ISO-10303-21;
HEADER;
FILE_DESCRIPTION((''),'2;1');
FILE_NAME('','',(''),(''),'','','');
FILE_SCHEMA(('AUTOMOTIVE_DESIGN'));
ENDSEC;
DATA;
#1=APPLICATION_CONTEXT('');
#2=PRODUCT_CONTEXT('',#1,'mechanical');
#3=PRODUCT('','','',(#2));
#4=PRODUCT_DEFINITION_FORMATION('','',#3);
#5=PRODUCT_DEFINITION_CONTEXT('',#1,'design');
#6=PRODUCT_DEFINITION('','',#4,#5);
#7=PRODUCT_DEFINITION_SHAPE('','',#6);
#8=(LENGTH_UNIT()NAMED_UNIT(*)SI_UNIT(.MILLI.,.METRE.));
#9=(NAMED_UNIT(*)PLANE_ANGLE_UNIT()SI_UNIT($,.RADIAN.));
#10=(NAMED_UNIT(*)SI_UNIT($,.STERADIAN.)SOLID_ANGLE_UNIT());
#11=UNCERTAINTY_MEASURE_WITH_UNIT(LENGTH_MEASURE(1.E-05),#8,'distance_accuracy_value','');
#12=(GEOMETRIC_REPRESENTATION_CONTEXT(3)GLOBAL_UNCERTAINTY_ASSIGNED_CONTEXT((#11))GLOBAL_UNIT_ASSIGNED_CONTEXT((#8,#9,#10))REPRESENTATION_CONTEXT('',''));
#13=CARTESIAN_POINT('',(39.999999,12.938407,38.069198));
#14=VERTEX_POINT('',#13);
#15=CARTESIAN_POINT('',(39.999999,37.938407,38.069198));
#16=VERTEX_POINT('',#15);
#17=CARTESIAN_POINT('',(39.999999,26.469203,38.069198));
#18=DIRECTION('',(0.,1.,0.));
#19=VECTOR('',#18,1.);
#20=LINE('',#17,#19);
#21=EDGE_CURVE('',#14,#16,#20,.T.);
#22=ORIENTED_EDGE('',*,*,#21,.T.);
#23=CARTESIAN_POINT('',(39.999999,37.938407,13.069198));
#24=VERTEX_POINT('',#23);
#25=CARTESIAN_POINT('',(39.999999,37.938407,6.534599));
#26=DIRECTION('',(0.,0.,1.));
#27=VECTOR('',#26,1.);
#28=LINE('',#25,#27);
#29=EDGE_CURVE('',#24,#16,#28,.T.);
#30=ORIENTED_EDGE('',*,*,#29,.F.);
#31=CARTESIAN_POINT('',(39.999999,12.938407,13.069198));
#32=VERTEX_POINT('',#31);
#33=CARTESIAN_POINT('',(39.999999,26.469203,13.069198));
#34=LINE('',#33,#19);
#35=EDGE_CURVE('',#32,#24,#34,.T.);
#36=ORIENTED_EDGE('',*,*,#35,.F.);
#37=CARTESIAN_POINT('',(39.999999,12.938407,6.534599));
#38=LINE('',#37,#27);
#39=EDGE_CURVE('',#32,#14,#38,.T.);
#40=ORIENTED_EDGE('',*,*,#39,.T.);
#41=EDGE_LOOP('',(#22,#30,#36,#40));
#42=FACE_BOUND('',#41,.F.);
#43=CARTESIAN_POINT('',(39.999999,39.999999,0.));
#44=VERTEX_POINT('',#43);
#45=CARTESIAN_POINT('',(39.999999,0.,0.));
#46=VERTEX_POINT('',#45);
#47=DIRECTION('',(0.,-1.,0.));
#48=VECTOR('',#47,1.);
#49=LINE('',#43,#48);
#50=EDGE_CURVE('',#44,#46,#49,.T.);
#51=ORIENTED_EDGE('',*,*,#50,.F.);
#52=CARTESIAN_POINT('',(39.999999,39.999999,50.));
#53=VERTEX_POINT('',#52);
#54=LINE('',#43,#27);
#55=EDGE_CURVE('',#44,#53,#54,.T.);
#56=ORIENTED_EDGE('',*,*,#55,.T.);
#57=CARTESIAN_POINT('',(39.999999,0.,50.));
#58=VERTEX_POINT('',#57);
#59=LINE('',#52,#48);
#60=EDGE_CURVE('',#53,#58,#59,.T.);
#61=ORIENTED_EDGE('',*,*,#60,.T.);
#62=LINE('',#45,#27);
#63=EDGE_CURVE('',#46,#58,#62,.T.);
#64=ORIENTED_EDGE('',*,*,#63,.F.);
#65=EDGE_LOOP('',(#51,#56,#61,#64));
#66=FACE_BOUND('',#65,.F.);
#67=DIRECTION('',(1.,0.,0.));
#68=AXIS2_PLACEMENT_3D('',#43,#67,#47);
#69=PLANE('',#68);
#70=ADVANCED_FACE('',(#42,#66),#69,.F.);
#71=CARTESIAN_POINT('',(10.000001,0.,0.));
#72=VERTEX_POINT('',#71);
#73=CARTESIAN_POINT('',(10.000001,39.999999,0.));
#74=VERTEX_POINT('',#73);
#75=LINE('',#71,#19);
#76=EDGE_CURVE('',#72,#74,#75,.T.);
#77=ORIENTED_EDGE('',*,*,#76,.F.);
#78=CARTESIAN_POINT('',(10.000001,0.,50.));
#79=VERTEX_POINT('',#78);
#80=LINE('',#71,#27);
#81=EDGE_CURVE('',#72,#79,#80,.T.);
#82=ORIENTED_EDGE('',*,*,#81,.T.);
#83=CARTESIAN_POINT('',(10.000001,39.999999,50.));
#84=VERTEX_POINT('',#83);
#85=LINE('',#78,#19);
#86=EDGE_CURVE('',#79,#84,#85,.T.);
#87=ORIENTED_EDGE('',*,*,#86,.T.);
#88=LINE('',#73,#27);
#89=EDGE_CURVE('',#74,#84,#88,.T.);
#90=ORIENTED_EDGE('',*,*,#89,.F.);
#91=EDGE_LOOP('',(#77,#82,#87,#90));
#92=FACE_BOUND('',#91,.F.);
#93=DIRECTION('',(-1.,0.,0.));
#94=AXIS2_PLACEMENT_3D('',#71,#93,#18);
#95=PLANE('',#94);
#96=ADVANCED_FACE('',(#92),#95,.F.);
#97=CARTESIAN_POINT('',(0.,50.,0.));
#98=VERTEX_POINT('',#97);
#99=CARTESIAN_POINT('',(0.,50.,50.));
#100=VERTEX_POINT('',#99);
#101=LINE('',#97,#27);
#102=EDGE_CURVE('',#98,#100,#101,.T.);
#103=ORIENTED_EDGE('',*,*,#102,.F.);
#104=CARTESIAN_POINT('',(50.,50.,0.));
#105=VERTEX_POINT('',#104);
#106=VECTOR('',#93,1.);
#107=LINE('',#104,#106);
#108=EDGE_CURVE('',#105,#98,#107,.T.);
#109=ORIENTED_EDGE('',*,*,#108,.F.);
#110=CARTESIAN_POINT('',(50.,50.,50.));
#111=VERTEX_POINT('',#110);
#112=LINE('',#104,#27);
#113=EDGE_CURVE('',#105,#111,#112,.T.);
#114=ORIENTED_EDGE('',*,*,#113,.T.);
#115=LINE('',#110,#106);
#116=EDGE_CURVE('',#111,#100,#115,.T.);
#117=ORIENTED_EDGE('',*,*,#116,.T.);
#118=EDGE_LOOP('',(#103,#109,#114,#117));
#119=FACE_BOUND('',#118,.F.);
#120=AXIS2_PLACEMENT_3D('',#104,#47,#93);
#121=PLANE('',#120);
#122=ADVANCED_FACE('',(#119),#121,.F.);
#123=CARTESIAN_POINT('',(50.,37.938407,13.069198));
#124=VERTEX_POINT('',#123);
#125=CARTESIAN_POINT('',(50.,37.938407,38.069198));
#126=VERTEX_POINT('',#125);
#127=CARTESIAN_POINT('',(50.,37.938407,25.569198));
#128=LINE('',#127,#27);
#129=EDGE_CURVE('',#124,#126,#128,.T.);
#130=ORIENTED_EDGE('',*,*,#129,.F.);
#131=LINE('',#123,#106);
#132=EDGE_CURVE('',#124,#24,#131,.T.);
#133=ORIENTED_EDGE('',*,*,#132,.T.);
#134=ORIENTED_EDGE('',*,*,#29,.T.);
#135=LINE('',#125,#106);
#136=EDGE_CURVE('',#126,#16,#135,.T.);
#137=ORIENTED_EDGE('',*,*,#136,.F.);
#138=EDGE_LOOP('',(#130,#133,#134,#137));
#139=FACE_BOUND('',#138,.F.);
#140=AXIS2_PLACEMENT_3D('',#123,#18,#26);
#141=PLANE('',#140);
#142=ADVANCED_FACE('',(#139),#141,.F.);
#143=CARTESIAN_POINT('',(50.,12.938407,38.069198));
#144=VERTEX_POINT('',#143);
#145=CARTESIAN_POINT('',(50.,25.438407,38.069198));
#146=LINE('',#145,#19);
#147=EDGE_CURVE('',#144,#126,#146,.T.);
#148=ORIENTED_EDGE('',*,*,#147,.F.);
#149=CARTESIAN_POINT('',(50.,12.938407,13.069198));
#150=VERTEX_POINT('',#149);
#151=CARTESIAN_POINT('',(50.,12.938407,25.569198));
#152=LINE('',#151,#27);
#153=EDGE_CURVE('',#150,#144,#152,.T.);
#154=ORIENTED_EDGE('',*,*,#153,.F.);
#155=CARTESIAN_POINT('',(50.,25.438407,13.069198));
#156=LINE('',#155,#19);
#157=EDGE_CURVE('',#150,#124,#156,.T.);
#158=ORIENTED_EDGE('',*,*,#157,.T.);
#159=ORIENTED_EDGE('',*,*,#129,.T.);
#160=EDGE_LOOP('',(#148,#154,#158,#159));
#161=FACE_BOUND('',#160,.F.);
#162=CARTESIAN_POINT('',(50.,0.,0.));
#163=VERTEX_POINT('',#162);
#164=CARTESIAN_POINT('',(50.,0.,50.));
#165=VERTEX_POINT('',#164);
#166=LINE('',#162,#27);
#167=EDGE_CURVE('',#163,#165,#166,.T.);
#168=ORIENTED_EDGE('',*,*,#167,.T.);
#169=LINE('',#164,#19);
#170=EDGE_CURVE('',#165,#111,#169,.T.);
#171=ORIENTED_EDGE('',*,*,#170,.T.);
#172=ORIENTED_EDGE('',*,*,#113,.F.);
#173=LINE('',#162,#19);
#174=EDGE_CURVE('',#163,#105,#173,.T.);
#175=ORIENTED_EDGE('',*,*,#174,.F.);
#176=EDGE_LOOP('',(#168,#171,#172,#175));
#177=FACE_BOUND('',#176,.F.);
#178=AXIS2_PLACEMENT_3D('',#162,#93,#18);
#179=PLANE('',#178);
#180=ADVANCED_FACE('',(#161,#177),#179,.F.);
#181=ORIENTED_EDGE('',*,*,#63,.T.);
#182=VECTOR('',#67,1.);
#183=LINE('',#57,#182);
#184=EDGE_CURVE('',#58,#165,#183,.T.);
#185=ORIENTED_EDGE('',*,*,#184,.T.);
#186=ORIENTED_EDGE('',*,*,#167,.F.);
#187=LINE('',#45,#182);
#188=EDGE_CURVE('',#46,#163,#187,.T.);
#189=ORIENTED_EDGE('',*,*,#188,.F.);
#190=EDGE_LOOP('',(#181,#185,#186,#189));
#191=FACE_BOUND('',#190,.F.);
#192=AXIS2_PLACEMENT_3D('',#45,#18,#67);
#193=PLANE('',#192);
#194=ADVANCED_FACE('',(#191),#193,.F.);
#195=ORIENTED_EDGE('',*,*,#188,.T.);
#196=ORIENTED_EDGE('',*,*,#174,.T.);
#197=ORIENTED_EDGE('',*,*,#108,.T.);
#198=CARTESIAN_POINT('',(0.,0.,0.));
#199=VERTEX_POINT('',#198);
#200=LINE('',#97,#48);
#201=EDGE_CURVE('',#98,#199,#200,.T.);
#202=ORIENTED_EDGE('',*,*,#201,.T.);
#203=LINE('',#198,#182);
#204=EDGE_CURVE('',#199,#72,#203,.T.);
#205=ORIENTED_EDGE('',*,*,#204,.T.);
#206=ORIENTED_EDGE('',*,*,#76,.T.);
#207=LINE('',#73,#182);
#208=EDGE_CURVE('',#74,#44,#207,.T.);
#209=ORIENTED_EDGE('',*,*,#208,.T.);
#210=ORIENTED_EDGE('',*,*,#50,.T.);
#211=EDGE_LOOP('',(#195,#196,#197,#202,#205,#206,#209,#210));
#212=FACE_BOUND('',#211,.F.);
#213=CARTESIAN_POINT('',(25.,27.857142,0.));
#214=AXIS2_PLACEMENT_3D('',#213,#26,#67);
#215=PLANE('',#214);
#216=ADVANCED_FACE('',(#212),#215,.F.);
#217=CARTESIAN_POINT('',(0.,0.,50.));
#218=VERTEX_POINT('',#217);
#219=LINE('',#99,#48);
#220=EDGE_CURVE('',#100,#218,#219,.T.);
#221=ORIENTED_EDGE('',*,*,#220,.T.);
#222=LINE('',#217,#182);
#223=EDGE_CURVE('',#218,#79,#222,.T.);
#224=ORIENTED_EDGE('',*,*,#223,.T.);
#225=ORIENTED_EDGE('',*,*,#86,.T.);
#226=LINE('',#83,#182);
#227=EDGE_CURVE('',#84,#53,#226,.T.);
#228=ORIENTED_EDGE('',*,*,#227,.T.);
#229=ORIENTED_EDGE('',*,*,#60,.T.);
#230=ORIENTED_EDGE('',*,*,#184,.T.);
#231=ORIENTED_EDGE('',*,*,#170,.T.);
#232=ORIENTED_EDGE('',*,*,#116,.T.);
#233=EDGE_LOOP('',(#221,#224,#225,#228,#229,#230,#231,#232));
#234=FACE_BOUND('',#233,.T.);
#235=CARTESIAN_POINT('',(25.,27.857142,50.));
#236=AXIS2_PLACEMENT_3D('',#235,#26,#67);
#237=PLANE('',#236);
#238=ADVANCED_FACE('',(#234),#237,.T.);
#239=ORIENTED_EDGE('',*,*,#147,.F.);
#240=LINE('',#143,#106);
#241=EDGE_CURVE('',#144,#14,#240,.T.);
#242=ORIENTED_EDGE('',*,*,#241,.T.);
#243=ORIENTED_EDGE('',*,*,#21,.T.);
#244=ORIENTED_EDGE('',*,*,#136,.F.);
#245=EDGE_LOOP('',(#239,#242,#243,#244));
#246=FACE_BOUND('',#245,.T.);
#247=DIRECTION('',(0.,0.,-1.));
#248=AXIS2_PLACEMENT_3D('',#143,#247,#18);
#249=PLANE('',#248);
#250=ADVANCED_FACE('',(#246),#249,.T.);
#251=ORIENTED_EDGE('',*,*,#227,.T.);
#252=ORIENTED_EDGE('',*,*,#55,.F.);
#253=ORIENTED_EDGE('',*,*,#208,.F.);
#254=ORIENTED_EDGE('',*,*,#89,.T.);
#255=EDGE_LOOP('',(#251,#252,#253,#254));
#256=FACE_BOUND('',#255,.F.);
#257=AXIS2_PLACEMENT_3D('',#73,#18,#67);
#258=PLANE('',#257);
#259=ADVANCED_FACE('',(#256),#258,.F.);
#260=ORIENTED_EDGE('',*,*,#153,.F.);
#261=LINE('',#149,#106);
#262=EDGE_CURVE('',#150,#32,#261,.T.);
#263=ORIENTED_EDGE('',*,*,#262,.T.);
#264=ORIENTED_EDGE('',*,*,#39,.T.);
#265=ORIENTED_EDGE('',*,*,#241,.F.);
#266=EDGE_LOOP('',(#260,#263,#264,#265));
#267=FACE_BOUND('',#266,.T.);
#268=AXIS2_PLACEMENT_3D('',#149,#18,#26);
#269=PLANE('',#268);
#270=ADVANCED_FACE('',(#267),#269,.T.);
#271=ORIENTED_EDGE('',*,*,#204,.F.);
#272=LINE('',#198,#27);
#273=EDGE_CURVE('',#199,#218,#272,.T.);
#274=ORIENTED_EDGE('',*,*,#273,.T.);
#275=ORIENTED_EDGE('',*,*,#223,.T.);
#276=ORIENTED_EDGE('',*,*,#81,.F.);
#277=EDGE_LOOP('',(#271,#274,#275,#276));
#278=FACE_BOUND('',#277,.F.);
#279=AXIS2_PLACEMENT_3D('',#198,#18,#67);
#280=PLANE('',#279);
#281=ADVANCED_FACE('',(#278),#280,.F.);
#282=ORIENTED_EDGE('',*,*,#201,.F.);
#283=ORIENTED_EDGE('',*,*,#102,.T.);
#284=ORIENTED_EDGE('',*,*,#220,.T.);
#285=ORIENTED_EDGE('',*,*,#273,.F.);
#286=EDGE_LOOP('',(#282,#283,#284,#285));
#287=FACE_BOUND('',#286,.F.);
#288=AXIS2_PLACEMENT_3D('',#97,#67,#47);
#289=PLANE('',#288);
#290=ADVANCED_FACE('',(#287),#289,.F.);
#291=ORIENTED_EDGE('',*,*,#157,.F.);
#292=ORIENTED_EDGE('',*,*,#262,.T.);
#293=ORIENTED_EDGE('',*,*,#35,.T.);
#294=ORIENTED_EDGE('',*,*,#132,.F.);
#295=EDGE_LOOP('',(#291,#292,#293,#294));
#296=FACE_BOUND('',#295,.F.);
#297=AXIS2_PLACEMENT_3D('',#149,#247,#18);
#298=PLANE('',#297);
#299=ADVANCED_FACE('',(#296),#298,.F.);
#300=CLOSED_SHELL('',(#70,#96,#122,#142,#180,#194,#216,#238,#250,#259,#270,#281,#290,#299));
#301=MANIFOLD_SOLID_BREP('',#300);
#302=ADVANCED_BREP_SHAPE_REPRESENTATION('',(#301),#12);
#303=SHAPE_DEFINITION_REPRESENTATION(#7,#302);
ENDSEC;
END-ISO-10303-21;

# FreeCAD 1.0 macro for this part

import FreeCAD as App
import Part
import Sketcher


def add_polygon(sketch, points):
    """Adds a closed chain of lines whose ends are joined by coincident constraints."""
    first, n = sketch.GeometryCount, len(points)
    for a, b in zip(points, points[1:] + points[:1]):
        sketch.addGeometry(Part.LineSegment(App.Vector(*a, 0), App.Vector(*b, 0)), False)
    for i in range(n):
        sketch.addConstraint(Sketcher.Constraint("Coincident", first + i, 2, first + (i + 1) % n, 1))

doc = App.newDocument("Part")
body = doc.addObject("PartDesign::Body", "Body")

# Sketch on XY plane
sketch1 = doc.addObject("Sketcher::SketchObject", "Sketch")
body.addObject(sketch1)
sketch1.AttachmentSupport = (doc.XY_Plane, [""])
sketch1.MapMode = "FlatFace"
add_polygon(sketch1, [(0, 50), (0, 0), (10.000001, 0), (10.000001, 39.999999), (39.999999, 39.999999), (39.999999, 0), (50, 0), (50, 50)])  # lines 0-7
sketch1.addConstraint([
    Sketcher.Constraint("Vertical", 0),
    Sketcher.Constraint("Horizontal", 1),
    Sketcher.Constraint("Vertical", 2),
    Sketcher.Constraint("Horizontal", 3),
    Sketcher.Constraint("Vertical", 4),
    Sketcher.Constraint("Horizontal", 5),
    Sketcher.Constraint("Vertical", 6),
    Sketcher.Constraint("Horizontal", 7),
    Sketcher.Constraint("Coincident", 0, 2, -1, 1),
    Sketcher.Constraint("PointOnObject", 4, 2, -1),
    Sketcher.Constraint("Equal", 1, 5),
    Sketcher.Constraint("Equal", 7, 0),
    Sketcher.Constraint("DistanceX", 1, 1, 1, 2, 10.000001),
    Sketcher.Constraint("DistanceX", 3, 1, 3, 2, 29.999998),
    Sketcher.Constraint("DistanceY", 2, 1, 2, 2, 39.999999),
])
pad1 = doc.addObject("PartDesign::Pad", "Pad")
body.addObject(pad1)
pad1.Profile = sketch1
pad1.Length = 50

# Sketch on YZ plane
sketch2 = doc.addObject("Sketcher::SketchObject", "Sketch001")
body.addObject(sketch2)
sketch2.AttachmentSupport = (doc.YZ_Plane, [""])
sketch2.MapMode = "FlatFace"
sketch2.AttachmentOffset = App.Placement(App.Vector(0, 0, 50), App.Rotation())
add_polygon(sketch2, [(12.938407, 38.069198), (12.938407, 13.069198), (37.938407, 13.069198), (37.938407, 38.069198)])  # lines 0-3
sketch2.addConstraint([
    Sketcher.Constraint("Vertical", 0),
    Sketcher.Constraint("Horizontal", 1),
    Sketcher.Constraint("Vertical", 2),
    Sketcher.Constraint("Horizontal", 3),
    Sketcher.Constraint("Equal", 3, 0),
    Sketcher.Constraint("DistanceX", 1, 1, 1, 2, 25.0),
    Sketcher.Constraint("DistanceX", -1, 1, 0, 2, 12.938407),
    Sketcher.Constraint("DistanceY", -1, 1, 0, 2, 13.069198),
])
pocket1 = doc.addObject("PartDesign::Pocket", "Pocket")
body.addObject(pocket1)
pocket1.Profile = sketch2
pocket1.Length = 27

doc.recompute()
